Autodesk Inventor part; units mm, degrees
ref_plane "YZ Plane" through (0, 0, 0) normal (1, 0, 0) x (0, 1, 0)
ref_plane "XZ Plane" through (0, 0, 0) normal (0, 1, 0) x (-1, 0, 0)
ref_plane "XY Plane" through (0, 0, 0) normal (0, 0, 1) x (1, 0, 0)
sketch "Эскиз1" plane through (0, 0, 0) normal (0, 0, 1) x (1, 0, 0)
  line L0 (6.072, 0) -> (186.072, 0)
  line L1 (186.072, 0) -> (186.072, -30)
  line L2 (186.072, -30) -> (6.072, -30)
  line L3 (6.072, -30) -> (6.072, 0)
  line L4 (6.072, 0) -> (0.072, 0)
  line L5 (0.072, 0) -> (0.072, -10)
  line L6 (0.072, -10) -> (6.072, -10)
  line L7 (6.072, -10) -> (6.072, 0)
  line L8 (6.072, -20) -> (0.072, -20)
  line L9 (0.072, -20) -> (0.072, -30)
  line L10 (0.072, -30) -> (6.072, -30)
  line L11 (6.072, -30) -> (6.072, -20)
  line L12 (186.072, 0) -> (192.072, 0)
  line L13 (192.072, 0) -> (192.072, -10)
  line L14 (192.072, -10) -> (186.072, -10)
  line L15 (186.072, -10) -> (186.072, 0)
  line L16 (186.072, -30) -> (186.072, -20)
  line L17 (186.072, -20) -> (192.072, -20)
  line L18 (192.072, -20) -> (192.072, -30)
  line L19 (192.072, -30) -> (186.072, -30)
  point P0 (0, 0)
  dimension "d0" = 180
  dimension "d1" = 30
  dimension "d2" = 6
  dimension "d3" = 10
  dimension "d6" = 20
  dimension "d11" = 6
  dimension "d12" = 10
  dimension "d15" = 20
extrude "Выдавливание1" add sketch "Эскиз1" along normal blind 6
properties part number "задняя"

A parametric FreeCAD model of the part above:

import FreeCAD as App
import Part
import Sketcher
Q = App.Units.Quantity

doc = App.newDocument("Part")
params = doc.addObject("Spreadsheet::Sheet", "Params")
for row, (alias, value) in enumerate([
    ("sketch1_width", "6 mm"),
    ("sketch1_height", "10 mm"),
    ("pad1_length", "6 mm"),
], start=1):
    params.set(f"A{row}", alias)
    params.set(f"B{row}", "=" + value)
    params.setAlias(f"B{row}", alias)

body = doc.addObject("PartDesign::Body", "Body")

sketch1 = body.newObject("Sketcher::SketchObject", "Sketch")
sketch1.AttachmentSupport = (doc.getObject("XY_Plane"), [""])
sketch1.MapMode = "FlatFace"
sketch1.addGeometry([
    Part.LineSegment(App.Vector(0, 0, 0), App.Vector(0, -10, 0)),
    Part.LineSegment(App.Vector(0, -10, 0), App.Vector(6, -10, 0)),
    Part.LineSegment(App.Vector(6, -10, 0), App.Vector(6, -20, 0)),
    Part.LineSegment(App.Vector(6, -20, 0), App.Vector(0, -20, 0)),
    Part.LineSegment(App.Vector(0, -20, 0), App.Vector(0, -30, 0)),
    Part.LineSegment(App.Vector(0, -30, 0), App.Vector(192, -30, 0)),
    Part.LineSegment(App.Vector(192, -30, 0), App.Vector(192, -20, 0)),
    Part.LineSegment(App.Vector(192, -20, 0), App.Vector(186, -20, 0)),
    Part.LineSegment(App.Vector(186, -20, 0), App.Vector(186, -10, 0)),
    Part.LineSegment(App.Vector(186, -10, 0), App.Vector(192, -10, 0)),
    Part.LineSegment(App.Vector(192, -10, 0), App.Vector(192, 0, 0)),
    Part.LineSegment(App.Vector(192, 0, 0), App.Vector(0, 0, 0)),
], False)
sketch1.addConstraint([
    Sketcher.Constraint("Coincident", 0, 2, 1, 1),
    Sketcher.Constraint("Coincident", 1, 2, 2, 1),
    Sketcher.Constraint("Coincident", 2, 2, 3, 1),
    Sketcher.Constraint("Coincident", 3, 2, 4, 1),
    Sketcher.Constraint("Coincident", 4, 2, 5, 1),
    Sketcher.Constraint("Coincident", 5, 2, 6, 1),
    Sketcher.Constraint("Coincident", 6, 2, 7, 1),
    Sketcher.Constraint("Coincident", 7, 2, 8, 1),
    Sketcher.Constraint("Coincident", 8, 2, 9, 1),
    Sketcher.Constraint("Coincident", 9, 2, 10, 1),
    Sketcher.Constraint("Coincident", 10, 2, 11, 1),
    Sketcher.Constraint("Coincident", 11, 2, 0, 1),
    Sketcher.Constraint("Vertical", 0),
    Sketcher.Constraint("Horizontal", 1),
    Sketcher.Constraint("Vertical", 2),
    Sketcher.Constraint("Horizontal", 3),
    Sketcher.Constraint("Vertical", 4),
    Sketcher.Constraint("Horizontal", 5),
    Sketcher.Constraint("Vertical", 6),
    Sketcher.Constraint("Horizontal", 7),
    Sketcher.Constraint("Vertical", 8),
    Sketcher.Constraint("Horizontal", 9),
    Sketcher.Constraint("Vertical", 10),
    Sketcher.Constraint("Horizontal", 11),
    Sketcher.Constraint("PointOnObject", 10, 2, -1),
    Sketcher.Constraint("Horizontal", 3, 2, 6, 2),
    Sketcher.Constraint("Horizontal", 1, 2, 8, 2),
    Sketcher.Constraint("Vertical", 0, 2, 3, 2),
    Sketcher.Constraint("Vertical", 6, 2, 9, 2),
    Sketcher.Constraint("Equal", 3, 7),
    Sketcher.Constraint("Equal", 0, 2),
    Sketcher.Constraint("Equal", 2, 4),
    Sketcher.Constraint("DistanceX", 1, 1, 1, 2, Q("6 mm")),
    Sketcher.Constraint("DistanceY", 0, 2, 0, 1, Q("10 mm")),
    Sketcher.Constraint("DistanceX", 2, 2, 7, 2, Q("180 mm")),
    Sketcher.Constraint("DistanceX", -1, 1, 0, 2, Q("0.072 mm")),
])
sketch1.setExpression("Constraints[32]", "Params.sketch1_width")
sketch1.setExpression("Constraints[33]", "Params.sketch1_height")
pad1 = body.newObject("PartDesign::Pad", "Pad")
pad1.Profile = sketch1
pad1.setExpression("Length", "Params.pad1_length")

doc.recompute()
